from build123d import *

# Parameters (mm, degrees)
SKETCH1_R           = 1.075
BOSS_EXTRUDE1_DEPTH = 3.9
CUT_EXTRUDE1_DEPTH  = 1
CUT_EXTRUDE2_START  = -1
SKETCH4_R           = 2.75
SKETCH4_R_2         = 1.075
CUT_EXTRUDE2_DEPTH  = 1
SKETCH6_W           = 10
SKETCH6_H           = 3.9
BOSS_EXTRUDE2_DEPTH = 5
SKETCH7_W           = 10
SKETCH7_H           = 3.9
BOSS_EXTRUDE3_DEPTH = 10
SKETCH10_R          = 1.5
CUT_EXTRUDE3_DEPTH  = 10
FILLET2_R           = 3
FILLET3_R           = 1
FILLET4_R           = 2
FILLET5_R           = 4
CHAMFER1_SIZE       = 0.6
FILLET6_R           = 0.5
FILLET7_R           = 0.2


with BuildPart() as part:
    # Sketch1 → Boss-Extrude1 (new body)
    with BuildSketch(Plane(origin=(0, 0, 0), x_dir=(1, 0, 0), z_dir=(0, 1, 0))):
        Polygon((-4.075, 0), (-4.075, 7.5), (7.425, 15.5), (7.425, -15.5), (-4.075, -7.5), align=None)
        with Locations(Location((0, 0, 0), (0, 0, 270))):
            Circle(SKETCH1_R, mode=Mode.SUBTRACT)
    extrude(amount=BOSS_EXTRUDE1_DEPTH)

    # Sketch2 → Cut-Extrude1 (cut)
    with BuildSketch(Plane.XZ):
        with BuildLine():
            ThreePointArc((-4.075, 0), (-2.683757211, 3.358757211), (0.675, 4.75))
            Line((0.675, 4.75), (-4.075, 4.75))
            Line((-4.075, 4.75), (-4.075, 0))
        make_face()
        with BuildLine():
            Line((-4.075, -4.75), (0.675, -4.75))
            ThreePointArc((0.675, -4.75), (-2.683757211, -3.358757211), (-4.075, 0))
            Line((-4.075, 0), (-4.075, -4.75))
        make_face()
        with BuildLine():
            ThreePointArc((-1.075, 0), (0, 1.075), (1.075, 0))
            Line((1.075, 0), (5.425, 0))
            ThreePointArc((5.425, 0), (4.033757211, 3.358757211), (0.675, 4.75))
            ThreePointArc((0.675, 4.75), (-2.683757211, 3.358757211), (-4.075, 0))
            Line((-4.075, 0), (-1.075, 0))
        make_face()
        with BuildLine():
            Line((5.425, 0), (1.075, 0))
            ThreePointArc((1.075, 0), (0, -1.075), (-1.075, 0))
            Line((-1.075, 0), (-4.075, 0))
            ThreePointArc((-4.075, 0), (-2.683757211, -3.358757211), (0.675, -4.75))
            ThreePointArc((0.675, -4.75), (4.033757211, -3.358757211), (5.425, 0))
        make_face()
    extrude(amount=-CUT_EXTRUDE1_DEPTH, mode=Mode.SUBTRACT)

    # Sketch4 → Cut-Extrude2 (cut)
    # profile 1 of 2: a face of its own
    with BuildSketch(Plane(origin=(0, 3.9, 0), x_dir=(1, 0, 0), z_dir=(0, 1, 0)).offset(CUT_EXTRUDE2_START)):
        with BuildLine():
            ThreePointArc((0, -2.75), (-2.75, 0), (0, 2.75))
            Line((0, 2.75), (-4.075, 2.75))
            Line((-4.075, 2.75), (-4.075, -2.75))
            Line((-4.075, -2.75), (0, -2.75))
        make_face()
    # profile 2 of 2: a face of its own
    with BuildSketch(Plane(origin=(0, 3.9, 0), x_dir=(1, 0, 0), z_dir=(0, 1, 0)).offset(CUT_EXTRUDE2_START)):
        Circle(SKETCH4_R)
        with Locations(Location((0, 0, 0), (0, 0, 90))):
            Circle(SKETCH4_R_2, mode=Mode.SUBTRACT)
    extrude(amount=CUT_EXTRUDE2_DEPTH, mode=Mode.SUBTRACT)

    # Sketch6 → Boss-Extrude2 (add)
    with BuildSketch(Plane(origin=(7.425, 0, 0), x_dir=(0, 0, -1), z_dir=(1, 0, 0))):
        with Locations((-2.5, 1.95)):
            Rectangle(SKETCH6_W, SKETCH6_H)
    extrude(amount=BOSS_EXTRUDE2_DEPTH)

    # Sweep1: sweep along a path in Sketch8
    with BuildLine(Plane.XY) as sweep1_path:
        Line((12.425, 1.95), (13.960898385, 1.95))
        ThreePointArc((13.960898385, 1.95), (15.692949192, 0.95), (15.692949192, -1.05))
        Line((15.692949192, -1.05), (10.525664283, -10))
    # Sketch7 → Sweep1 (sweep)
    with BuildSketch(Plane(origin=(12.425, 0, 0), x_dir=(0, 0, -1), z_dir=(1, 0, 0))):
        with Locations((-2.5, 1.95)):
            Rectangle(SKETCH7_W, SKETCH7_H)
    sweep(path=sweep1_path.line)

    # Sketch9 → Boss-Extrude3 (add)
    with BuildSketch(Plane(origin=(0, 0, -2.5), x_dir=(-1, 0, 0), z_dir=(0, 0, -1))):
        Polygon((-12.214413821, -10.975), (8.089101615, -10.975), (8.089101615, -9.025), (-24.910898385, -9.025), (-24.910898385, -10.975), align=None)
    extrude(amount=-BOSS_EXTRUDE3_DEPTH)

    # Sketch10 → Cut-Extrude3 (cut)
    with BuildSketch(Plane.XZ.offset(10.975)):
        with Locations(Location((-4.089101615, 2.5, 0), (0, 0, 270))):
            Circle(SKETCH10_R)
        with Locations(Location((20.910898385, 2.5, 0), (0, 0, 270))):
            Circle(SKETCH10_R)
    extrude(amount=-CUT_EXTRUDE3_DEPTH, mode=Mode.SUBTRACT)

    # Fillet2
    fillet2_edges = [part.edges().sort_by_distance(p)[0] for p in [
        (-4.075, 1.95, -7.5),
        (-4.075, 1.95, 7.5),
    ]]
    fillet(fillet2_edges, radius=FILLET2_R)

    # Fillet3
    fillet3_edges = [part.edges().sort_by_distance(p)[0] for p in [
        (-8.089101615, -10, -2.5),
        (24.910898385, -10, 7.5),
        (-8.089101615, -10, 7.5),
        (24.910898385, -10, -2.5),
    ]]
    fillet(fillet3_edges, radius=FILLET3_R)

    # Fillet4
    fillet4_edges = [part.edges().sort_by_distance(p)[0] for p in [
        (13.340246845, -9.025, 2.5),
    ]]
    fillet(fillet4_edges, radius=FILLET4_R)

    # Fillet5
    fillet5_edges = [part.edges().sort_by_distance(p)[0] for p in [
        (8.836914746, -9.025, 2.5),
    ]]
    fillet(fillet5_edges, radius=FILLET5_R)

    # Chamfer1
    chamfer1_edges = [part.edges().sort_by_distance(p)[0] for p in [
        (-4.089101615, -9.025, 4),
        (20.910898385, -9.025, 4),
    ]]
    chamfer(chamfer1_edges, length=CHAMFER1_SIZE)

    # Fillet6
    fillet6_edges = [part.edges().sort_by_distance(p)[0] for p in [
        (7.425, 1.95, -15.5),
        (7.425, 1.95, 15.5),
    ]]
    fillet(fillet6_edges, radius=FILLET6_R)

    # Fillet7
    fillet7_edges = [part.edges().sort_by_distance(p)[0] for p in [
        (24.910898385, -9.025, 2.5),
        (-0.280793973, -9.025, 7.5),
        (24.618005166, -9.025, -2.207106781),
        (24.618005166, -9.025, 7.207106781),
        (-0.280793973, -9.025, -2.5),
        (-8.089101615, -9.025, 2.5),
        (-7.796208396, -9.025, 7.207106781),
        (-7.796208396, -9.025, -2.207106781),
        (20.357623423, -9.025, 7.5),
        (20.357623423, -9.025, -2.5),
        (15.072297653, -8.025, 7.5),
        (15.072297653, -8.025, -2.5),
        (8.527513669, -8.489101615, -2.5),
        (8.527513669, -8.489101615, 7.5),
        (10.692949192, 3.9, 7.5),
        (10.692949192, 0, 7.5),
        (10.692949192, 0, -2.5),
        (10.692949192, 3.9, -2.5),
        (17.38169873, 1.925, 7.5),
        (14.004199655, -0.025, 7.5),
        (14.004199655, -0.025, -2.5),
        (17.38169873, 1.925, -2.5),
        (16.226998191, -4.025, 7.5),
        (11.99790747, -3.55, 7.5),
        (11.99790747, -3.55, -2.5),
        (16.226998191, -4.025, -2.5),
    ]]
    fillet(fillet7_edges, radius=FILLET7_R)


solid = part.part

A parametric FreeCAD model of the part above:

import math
import FreeCAD as App
import Part
import Sketcher
Q = App.Units.Quantity


def edges_at(feature, points):
    """Names of the edges that pass closest to the given points."""
    edges = feature.Shape.Edges
    near = lambda p: min(range(len(edges)), key=lambda i: edges[i].distToShape(Part.Vertex(*p))[0])
    return sorted({f"Edge{near(p) + 1}" for p in points})


def add_polygon(sketch, points):
    """Adds a closed chain of lines whose ends are joined by coincident constraints."""
    first, n = sketch.GeometryCount, len(points)
    for a, b in zip(points, points[1:] + points[:1]):
        sketch.addGeometry(Part.LineSegment(App.Vector(*a, 0), App.Vector(*b, 0)), False)
    for i in range(n):
        sketch.addConstraint(Sketcher.Constraint("Coincident", first + i, 2, first + (i + 1) % n, 1))

doc = App.newDocument("Part")
params = doc.addObject("Spreadsheet::Sheet", "Params")
for row, (alias, value) in enumerate([
    ("sketch1_diameter", "2.15 mm"),
    ("sketch1_height", "15 mm"),
    ("sketch1_height2", "31 mm"),
    ("pad1_length", "3.9 mm"),
    ("sketch2_diameter", "2.15 mm"),
    ("sketch2_radius", "4.75 mm"),
    ("sketch2_width", "4.75 mm"),
    ("pocket1_length", "1 mm"),
    ("sketch3_diameter", "2.15 mm"),
    ("sketch3_radius", "2.75 mm"),
    ("pocket2_length", "1 mm"),
    ("sketch4_height", "10 mm"),
    ("sketch4_width", "3.9 mm"),
    ("pad2_length", "5 mm"),
    ("sketch5_height", "10 mm"),
    ("sketch5_width", "3.9 mm"),
    ("sketch6_radius", "2 mm"),
    ("sketch7_width", "33 mm"),
    ("sketch7_height", "1.95 mm"),
    ("pad3_length", "10 mm"),
    ("sketch8_diameter", "3 mm"),
    ("pocket3_length", "10 mm"),
    ("fillet_radius", "3 mm"),
    ("fillet2_radius", "1 mm"),
    ("fillet3_radius", "2 mm"),
    ("fillet4_radius", "4 mm"),
    ("chamfer_size", "0.6 mm"),
    ("fillet5_radius", "0.5 mm"),
    ("fillet6_radius", "0.2 mm"),
], start=1):
    params.set(f"A{row}", alias)
    params.set(f"B{row}", "=" + value)
    params.setAlias(f"B{row}", alias)

body = doc.addObject("PartDesign::Body", "Body")

# Sketch on XZ plane
sketch1 = body.newObject("Sketcher::SketchObject", "Sketch")
sketch1.AttachmentSupport = (doc.getObject("XZ_Plane"), [""])
sketch1.MapMode = "FlatFace"
add_polygon(sketch1, [(-4.1, -7.5), (-4.1, 7.5), (7.4, 15.5), (7.4, -15.5)])  # lines 0-3
sketch1.addGeometry(Part.Circle(App.Vector(0, 0, 0), App.Vector(0, 0, 1), 1.1), False)  # 4
sketch1.addConstraint([
    Sketcher.Constraint("Vertical", 0),
    Sketcher.Constraint("Vertical", 2),
    Sketcher.Constraint("Coincident", 4, 3, -1, 1),
    Sketcher.Constraint("Equal", 1, 3),
    Sketcher.Constraint("Diameter", 4, 2.15),
    Sketcher.Constraint("DistanceY", 0, 1, 0, 2, 15.0),
    Sketcher.Constraint("DistanceY", 2, 2, 2, 1, 31.0),
    Sketcher.Constraint("DistanceY", -1, 1, 0, 2, 7.5),
    Sketcher.Constraint("DistanceX", 0, 2, 1, 2, 11.5),
    Sketcher.Constraint("DistanceX", 0, 2, -1, 1, 4.075),
])
sketch1.setExpression("Constraints[8]", "Params.sketch1_diameter")
sketch1.setExpression("Constraints[9]", "Params.sketch1_height")
sketch1.setExpression("Constraints[10]", "Params.sketch1_height2")
pad1 = body.newObject("PartDesign::Pad", "Pad")
pad1.Profile = sketch1
pad1.setExpression("Length", "Params.pad1_length")
pad1.Reversed = True

# Sketch on XZ plane
sketch2 = body.newObject("Sketcher::SketchObject", "Sketch001")
sketch2.AttachmentSupport = (doc.getObject("XZ_Plane"), [""])
sketch2.MapMode = "FlatFace"
sketch2.addGeometry([
    Part.LineSegment(App.Vector(0.7, 4.8, 0), App.Vector(-4.1, 4.8, 0)),  # 0
    Part.LineSegment(App.Vector(-4.1, 4.8, 0), App.Vector(-4.1, -4.8, 0)),  # 1
    Part.LineSegment(App.Vector(-4.1, -4.8, 0), App.Vector(0.7, -4.8, 0)),  # 2
    Part.ArcOfCircle(Part.Circle(App.Vector(0.7, 0, 0), App.Vector(0, 0, 1), 4.7), math.radians(-90), math.radians(0)),  # 3
    Part.ArcOfCircle(Part.Circle(App.Vector(0.7, 0, 0), App.Vector(0, 0, 1), 4.7), math.radians(0), math.radians(90)),  # 4
    Part.Circle(App.Vector(0, 0, 0), App.Vector(0, 0, 1), 1.1),  # 5
], False)
sketch2.addConstraint([
    Sketcher.Constraint("Coincident", 0, 2, 1, 1),
    Sketcher.Constraint("Coincident", 1, 2, 2, 1),
    Sketcher.Constraint("Tangent", 2, 2, 3, 1),
    Sketcher.Constraint("Tangent", 3, 2, 4, 1),
    Sketcher.Constraint("Tangent", 4, 2, 0, 1),
    Sketcher.Constraint("Horizontal", 0),
    Sketcher.Constraint("Vertical", 1),
    Sketcher.Constraint("Horizontal", 2),
    Sketcher.Constraint("Coincident", 5, 3, -1, 1),
    Sketcher.Constraint("Equal", 3, 4),
    Sketcher.Constraint("PointOnObject", 3, 3, -1),
    Sketcher.Constraint("PointOnObject", 3, 2, -1),
    Sketcher.Constraint("Diameter", 5, 2.15),
    Sketcher.Constraint("Radius", 3, 4.75),
    Sketcher.Constraint("DistanceX", 0, 2, 0, 1, 4.75),
    Sketcher.Constraint("DistanceX", -1, 1, 3, 3, 0.675),
])
sketch2.setExpression("Constraints[12]", "Params.sketch2_diameter")
sketch2.setExpression("Constraints[13]", "Params.sketch2_radius")
sketch2.setExpression("Constraints[14]", "Params.sketch2_width")
pocket1 = body.newObject("PartDesign::Pocket", "Pocket")
pocket1.Profile = sketch2
pocket1.setExpression("Length", "Params.pocket1_length")

# Sketch on XZ plane
sketch3 = body.newObject("Sketcher::SketchObject", "Sketch002")
sketch3.AttachmentSupport = (doc.getObject("XZ_Plane"), [""])
sketch3.MapMode = "FlatFace"
sketch3.AttachmentOffset = App.Placement(App.Vector(0, 0, -2.9), App.Rotation())
sketch3.addGeometry([
    Part.LineSegment(App.Vector(0, -2.8, 0), App.Vector(-4.1, -2.8, 0)),  # 0
    Part.LineSegment(App.Vector(-4.1, -2.8, 0), App.Vector(-4.1, 2.8, 0)),  # 1
    Part.LineSegment(App.Vector(-4.1, 2.8, 0), App.Vector(0, 2.8, 0)),  # 2
    Part.ArcOfCircle(Part.Circle(App.Vector(0, 0, 0), App.Vector(0, 0, 1), 2.8), math.radians(-90), math.radians(90)),  # 3
    Part.Circle(App.Vector(0, 0, 0), App.Vector(0, 0, 1), 1.1),  # 4
], False)
sketch3.addConstraint([
    Sketcher.Constraint("Coincident", 0, 2, 1, 1),
    Sketcher.Constraint("Coincident", 1, 2, 2, 1),
    Sketcher.Constraint("Tangent", 2, 2, 3, 2),
    Sketcher.Constraint("Tangent", 3, 1, 0, 1),
    Sketcher.Constraint("Horizontal", 0),
    Sketcher.Constraint("Vertical", 1),
    Sketcher.Constraint("Horizontal", 2),
    Sketcher.Constraint("Coincident", 3, 3, -1, 1),
    Sketcher.Constraint("Coincident", 4, 3, -1, 1),
    Sketcher.Constraint("Diameter", 4, 2.15),
    Sketcher.Constraint("Radius", 3, 2.75),
    Sketcher.Constraint("DistanceX", 0, 2, 0, 1, 4.075),
])
sketch3.setExpression("Constraints[9]", "Params.sketch3_diameter")
sketch3.setExpression("Constraints[10]", "Params.sketch3_radius")
pocket2 = body.newObject("PartDesign::Pocket", "Pocket001")
pocket2.Profile = sketch3
pocket2.setExpression("Length", "Params.pocket2_length")

# Sketch on YZ plane
sketch4 = body.newObject("Sketcher::SketchObject", "Sketch003")
sketch4.AttachmentSupport = (doc.getObject("YZ_Plane"), [""])
sketch4.MapMode = "FlatFace"
sketch4.AttachmentOffset = App.Placement(App.Vector(0, 0, 7.425), App.Rotation())
add_polygon(sketch4, [(3.9, 7.5), (0, 7.5), (0, -2.5), (3.9, -2.5)])  # lines 0-3
sketch4.addConstraint([
    Sketcher.Constraint("Horizontal", 0),
    Sketcher.Constraint("Vertical", 1),
    Sketcher.Constraint("Horizontal", 2),
    Sketcher.Constraint("Vertical", 3),
    Sketcher.Constraint("PointOnObject", 0, 2, -2),
    Sketcher.Constraint("DistanceY", 1, 2, 1, 1, 10.0),
    Sketcher.Constraint("DistanceX", 0, 2, 0, 1, 3.9),
    Sketcher.Constraint("DistanceY", -1, 1, 0, 2, 7.5),
])
sketch4.setExpression("Constraints[9]", "Params.sketch4_height")
sketch4.setExpression("Constraints[10]", "Params.sketch4_width")
pad2 = body.newObject("PartDesign::Pad", "Pad001")
pad2.Profile = sketch4
pad2.setExpression("Length", "Params.pad2_length")

# Sketch on YZ plane
sketch5 = body.newObject("Sketcher::SketchObject", "Sketch004")
sketch5.AttachmentSupport = (doc.getObject("YZ_Plane"), [""])
sketch5.MapMode = "FlatFace"
sketch5.AttachmentOffset = App.Placement(App.Vector(0, 0, 12.425), App.Rotation())
add_polygon(sketch5, [(3.9, 7.5), (0, 7.5), (0, -2.5), (3.9, -2.5)])  # lines 0-3
sketch5.addConstraint([
    Sketcher.Constraint("Horizontal", 0),
    Sketcher.Constraint("Vertical", 1),
    Sketcher.Constraint("Horizontal", 2),
    Sketcher.Constraint("Vertical", 3),
    Sketcher.Constraint("PointOnObject", 0, 2, -2),
    Sketcher.Constraint("DistanceY", 1, 2, 1, 1, 10.0),
    Sketcher.Constraint("DistanceX", 0, 2, 0, 1, 3.9),
    Sketcher.Constraint("DistanceY", -1, 1, 0, 2, 7.5),
])
sketch5.setExpression("Constraints[9]", "Params.sketch5_height")
sketch5.setExpression("Constraints[10]", "Params.sketch5_width")

# Sketch on XY plane
sketch6 = body.newObject("Sketcher::SketchObject", "Sketch005")
sketch6.AttachmentSupport = (doc.getObject("XY_Plane"), [""])
sketch6.MapMode = "FlatFace"
sketch6.addGeometry([
    Part.LineSegment(App.Vector(12.4, 1.9, 0), App.Vector(14, 1.9, 0)),
    Part.ArcOfCircle(Part.Circle(App.Vector(14, -0.1, 0), App.Vector(0, 0, 1), 2), math.radians(-30), math.radians(90)),
    Part.LineSegment(App.Vector(15.7, -1.1, 0), App.Vector(10.5, -10, 0)),
], False)
sketch6.addConstraint([
    Sketcher.Constraint("Tangent", 0, 2, 1, 2),
    Sketcher.Constraint("Tangent", 1, 1, 2, 1),
    Sketcher.Constraint("Horizontal", 0),
    Sketcher.Constraint("Radius", 1, 2.0),
    Sketcher.Constraint("Angle", 2, Q("-120 deg")),
    Sketcher.Constraint("DistanceY", 2, 2, -1, 1, 10.0),
    Sketcher.Constraint("DistanceY", 1, 3, -1, 1, 0.05),
    Sketcher.Constraint("DistanceX", 0, 1, 0, 2, 1.535898),
    Sketcher.Constraint("DistanceX", -1, 1, 0, 1, 12.425),
])
sketch6.setExpression("Constraints[3]", "Params.sketch6_radius")
doc.recompute()

additivepipe = body.newObject("PartDesign::AdditivePipe", "AdditivePipe")
additivepipe.Profile = sketch5
additivepipe.Spine = (sketch6, ["Edge1", "Edge2", "Edge3"])

# Sketch on XY plane
sketch7 = body.newObject("Sketcher::SketchObject", "Sketch006")
sketch7.AttachmentSupport = (doc.getObject("XY_Plane"), [""])
sketch7.MapMode = "FlatFace"
sketch7.AttachmentOffset = App.Placement(App.Vector(0, 0, -2.5), App.Rotation())
add_polygon(sketch7, [(-8.1, -11), (-8.1, -9), (24.9, -9), (24.9, -11)])  # lines 0-3
sketch7.addConstraint([
    Sketcher.Constraint("Vertical", 0),
    Sketcher.Constraint("Horizontal", 1),
    Sketcher.Constraint("Vertical", 2),
    Sketcher.Constraint("Horizontal", 3),
    Sketcher.Constraint("DistanceX", 1, 1, 1, 2, 33.0),
    Sketcher.Constraint("DistanceY", 0, 1, 0, 2, 1.95),
    Sketcher.Constraint("DistanceY", 0, 2, -1, 1, 9.025),
    Sketcher.Constraint("DistanceX", 0, 2, -1, 1, 8.089102),
])
sketch7.setExpression("Constraints[8]", "Params.sketch7_width")
sketch7.setExpression("Constraints[9]", "Params.sketch7_height")
pad3 = body.newObject("PartDesign::Pad", "Pad002")
pad3.Profile = sketch7
pad3.setExpression("Length", "Params.pad3_length")

# Sketch on XZ plane
sketch8 = body.newObject("Sketcher::SketchObject", "Sketch007")
sketch8.AttachmentSupport = (doc.getObject("XZ_Plane"), [""])
sketch8.MapMode = "FlatFace"
sketch8.AttachmentOffset = App.Placement(App.Vector(0, 0, 10.975), App.Rotation())
sketch8.addGeometry([
    Part.Circle(App.Vector(-4.1, 2.5, 0), App.Vector(0, 0, 1), 1.5),
    Part.Circle(App.Vector(20.9, 2.5, 0), App.Vector(0, 0, 1), 1.5),
], False)
sketch8.addConstraint([
    Sketcher.Constraint("Equal", 0, 1),
    Sketcher.Constraint("Horizontal", 0, 3, 1, 3),
    Sketcher.Constraint("Diameter", 0, 3.0),
    Sketcher.Constraint("DistanceX", 0, 3, 1, 3, 25.0),
    Sketcher.Constraint("DistanceY", -1, 1, 0, 3, 2.5),
    Sketcher.Constraint("DistanceX", 0, 3, -1, 1, 4.089102),
])
sketch8.setExpression("Constraints[2]", "Params.sketch8_diameter")
pocket3 = body.newObject("PartDesign::Pocket", "Pocket002")
pocket3.Profile = sketch8
pocket3.setExpression("Length", "Params.pocket3_length")
doc.recompute()

fillet = body.newObject("PartDesign::Fillet", "Fillet")
fillet.Base = (pocket3, edges_at(pocket3, [(-4.075, 1.95, -7.5), (-4.075, 1.95, 7.5)]))
fillet.setExpression("Radius", "Params.fillet_radius")
doc.recompute()

fillet2 = body.newObject("PartDesign::Fillet", "Fillet001")
fillet2.Base = (fillet, edges_at(fillet, [
    (-8.089, -10, -2.5),
    (24.911, -10, 7.5),
    (-8.089, -10, 7.5),
    (24.911, -10, -2.5),
]))
fillet2.setExpression("Radius", "Params.fillet2_radius")
doc.recompute()

fillet3 = body.newObject("PartDesign::Fillet", "Fillet002")
fillet3.Base = (fillet2, edges_at(fillet2, [(13.34, -9.025, 2.5)]))
fillet3.setExpression("Radius", "Params.fillet3_radius")
doc.recompute()

fillet4 = body.newObject("PartDesign::Fillet", "Fillet003")
fillet4.Base = (fillet3, edges_at(fillet3, [(8.837, -9.025, 2.5)]))
fillet4.setExpression("Radius", "Params.fillet4_radius")
doc.recompute()

chamfer = body.newObject("PartDesign::Chamfer", "Chamfer")
chamfer.Base = (fillet4, edges_at(fillet4, [(-4.089, -9.025, 4), (20.911, -9.025, 4)]))
chamfer.setExpression("Size", "Params.chamfer_size")
doc.recompute()

fillet5 = body.newObject("PartDesign::Fillet", "Fillet004")
fillet5.Base = (chamfer, edges_at(chamfer, [(7.425, 1.95, -15.5), (7.425, 1.95, 15.5)]))
fillet5.setExpression("Radius", "Params.fillet5_radius")
doc.recompute()

fillet6 = body.newObject("PartDesign::Fillet", "Fillet005")
fillet6.Base = (fillet5, edges_at(fillet5, [
    (24.911, -9.025, 2.5),
    (-0.281, -9.025, 7.5),
    (24.618, -9.025, -2.207),
    (24.618, -9.025, 7.207),
    (-0.281, -9.025, -2.5),
    (-8.089, -9.025, 2.5),
    (-7.796, -9.025, 7.207),
    (-7.796, -9.025, -2.207),
    (20.358, -9.025, 7.5),
    (20.358, -9.025, -2.5),
    (15.072, -8.025, 7.5),
    (15.072, -8.025, -2.5),
    (8.528, -8.489, -2.5),
    (8.528, -8.489, 7.5),
    (10.693, 3.9, 7.5),
    (10.693, 0, 7.5),
    (10.693, 0, -2.5),
    (10.693, 3.9, -2.5),
    (17.382, 1.925, 7.5),
    (14.004, -0.025, 7.5),
    (14.004, -0.025, -2.5),
    (17.382, 1.925, -2.5),
    (16.227, -4.025, 7.5),
    (11.998, -3.55, 7.5),
    (11.998, -3.55, -2.5),
    (16.227, -4.025, -2.5),
]))
fillet6.setExpression("Radius", "Params.fillet6_radius")

doc.recompute()
